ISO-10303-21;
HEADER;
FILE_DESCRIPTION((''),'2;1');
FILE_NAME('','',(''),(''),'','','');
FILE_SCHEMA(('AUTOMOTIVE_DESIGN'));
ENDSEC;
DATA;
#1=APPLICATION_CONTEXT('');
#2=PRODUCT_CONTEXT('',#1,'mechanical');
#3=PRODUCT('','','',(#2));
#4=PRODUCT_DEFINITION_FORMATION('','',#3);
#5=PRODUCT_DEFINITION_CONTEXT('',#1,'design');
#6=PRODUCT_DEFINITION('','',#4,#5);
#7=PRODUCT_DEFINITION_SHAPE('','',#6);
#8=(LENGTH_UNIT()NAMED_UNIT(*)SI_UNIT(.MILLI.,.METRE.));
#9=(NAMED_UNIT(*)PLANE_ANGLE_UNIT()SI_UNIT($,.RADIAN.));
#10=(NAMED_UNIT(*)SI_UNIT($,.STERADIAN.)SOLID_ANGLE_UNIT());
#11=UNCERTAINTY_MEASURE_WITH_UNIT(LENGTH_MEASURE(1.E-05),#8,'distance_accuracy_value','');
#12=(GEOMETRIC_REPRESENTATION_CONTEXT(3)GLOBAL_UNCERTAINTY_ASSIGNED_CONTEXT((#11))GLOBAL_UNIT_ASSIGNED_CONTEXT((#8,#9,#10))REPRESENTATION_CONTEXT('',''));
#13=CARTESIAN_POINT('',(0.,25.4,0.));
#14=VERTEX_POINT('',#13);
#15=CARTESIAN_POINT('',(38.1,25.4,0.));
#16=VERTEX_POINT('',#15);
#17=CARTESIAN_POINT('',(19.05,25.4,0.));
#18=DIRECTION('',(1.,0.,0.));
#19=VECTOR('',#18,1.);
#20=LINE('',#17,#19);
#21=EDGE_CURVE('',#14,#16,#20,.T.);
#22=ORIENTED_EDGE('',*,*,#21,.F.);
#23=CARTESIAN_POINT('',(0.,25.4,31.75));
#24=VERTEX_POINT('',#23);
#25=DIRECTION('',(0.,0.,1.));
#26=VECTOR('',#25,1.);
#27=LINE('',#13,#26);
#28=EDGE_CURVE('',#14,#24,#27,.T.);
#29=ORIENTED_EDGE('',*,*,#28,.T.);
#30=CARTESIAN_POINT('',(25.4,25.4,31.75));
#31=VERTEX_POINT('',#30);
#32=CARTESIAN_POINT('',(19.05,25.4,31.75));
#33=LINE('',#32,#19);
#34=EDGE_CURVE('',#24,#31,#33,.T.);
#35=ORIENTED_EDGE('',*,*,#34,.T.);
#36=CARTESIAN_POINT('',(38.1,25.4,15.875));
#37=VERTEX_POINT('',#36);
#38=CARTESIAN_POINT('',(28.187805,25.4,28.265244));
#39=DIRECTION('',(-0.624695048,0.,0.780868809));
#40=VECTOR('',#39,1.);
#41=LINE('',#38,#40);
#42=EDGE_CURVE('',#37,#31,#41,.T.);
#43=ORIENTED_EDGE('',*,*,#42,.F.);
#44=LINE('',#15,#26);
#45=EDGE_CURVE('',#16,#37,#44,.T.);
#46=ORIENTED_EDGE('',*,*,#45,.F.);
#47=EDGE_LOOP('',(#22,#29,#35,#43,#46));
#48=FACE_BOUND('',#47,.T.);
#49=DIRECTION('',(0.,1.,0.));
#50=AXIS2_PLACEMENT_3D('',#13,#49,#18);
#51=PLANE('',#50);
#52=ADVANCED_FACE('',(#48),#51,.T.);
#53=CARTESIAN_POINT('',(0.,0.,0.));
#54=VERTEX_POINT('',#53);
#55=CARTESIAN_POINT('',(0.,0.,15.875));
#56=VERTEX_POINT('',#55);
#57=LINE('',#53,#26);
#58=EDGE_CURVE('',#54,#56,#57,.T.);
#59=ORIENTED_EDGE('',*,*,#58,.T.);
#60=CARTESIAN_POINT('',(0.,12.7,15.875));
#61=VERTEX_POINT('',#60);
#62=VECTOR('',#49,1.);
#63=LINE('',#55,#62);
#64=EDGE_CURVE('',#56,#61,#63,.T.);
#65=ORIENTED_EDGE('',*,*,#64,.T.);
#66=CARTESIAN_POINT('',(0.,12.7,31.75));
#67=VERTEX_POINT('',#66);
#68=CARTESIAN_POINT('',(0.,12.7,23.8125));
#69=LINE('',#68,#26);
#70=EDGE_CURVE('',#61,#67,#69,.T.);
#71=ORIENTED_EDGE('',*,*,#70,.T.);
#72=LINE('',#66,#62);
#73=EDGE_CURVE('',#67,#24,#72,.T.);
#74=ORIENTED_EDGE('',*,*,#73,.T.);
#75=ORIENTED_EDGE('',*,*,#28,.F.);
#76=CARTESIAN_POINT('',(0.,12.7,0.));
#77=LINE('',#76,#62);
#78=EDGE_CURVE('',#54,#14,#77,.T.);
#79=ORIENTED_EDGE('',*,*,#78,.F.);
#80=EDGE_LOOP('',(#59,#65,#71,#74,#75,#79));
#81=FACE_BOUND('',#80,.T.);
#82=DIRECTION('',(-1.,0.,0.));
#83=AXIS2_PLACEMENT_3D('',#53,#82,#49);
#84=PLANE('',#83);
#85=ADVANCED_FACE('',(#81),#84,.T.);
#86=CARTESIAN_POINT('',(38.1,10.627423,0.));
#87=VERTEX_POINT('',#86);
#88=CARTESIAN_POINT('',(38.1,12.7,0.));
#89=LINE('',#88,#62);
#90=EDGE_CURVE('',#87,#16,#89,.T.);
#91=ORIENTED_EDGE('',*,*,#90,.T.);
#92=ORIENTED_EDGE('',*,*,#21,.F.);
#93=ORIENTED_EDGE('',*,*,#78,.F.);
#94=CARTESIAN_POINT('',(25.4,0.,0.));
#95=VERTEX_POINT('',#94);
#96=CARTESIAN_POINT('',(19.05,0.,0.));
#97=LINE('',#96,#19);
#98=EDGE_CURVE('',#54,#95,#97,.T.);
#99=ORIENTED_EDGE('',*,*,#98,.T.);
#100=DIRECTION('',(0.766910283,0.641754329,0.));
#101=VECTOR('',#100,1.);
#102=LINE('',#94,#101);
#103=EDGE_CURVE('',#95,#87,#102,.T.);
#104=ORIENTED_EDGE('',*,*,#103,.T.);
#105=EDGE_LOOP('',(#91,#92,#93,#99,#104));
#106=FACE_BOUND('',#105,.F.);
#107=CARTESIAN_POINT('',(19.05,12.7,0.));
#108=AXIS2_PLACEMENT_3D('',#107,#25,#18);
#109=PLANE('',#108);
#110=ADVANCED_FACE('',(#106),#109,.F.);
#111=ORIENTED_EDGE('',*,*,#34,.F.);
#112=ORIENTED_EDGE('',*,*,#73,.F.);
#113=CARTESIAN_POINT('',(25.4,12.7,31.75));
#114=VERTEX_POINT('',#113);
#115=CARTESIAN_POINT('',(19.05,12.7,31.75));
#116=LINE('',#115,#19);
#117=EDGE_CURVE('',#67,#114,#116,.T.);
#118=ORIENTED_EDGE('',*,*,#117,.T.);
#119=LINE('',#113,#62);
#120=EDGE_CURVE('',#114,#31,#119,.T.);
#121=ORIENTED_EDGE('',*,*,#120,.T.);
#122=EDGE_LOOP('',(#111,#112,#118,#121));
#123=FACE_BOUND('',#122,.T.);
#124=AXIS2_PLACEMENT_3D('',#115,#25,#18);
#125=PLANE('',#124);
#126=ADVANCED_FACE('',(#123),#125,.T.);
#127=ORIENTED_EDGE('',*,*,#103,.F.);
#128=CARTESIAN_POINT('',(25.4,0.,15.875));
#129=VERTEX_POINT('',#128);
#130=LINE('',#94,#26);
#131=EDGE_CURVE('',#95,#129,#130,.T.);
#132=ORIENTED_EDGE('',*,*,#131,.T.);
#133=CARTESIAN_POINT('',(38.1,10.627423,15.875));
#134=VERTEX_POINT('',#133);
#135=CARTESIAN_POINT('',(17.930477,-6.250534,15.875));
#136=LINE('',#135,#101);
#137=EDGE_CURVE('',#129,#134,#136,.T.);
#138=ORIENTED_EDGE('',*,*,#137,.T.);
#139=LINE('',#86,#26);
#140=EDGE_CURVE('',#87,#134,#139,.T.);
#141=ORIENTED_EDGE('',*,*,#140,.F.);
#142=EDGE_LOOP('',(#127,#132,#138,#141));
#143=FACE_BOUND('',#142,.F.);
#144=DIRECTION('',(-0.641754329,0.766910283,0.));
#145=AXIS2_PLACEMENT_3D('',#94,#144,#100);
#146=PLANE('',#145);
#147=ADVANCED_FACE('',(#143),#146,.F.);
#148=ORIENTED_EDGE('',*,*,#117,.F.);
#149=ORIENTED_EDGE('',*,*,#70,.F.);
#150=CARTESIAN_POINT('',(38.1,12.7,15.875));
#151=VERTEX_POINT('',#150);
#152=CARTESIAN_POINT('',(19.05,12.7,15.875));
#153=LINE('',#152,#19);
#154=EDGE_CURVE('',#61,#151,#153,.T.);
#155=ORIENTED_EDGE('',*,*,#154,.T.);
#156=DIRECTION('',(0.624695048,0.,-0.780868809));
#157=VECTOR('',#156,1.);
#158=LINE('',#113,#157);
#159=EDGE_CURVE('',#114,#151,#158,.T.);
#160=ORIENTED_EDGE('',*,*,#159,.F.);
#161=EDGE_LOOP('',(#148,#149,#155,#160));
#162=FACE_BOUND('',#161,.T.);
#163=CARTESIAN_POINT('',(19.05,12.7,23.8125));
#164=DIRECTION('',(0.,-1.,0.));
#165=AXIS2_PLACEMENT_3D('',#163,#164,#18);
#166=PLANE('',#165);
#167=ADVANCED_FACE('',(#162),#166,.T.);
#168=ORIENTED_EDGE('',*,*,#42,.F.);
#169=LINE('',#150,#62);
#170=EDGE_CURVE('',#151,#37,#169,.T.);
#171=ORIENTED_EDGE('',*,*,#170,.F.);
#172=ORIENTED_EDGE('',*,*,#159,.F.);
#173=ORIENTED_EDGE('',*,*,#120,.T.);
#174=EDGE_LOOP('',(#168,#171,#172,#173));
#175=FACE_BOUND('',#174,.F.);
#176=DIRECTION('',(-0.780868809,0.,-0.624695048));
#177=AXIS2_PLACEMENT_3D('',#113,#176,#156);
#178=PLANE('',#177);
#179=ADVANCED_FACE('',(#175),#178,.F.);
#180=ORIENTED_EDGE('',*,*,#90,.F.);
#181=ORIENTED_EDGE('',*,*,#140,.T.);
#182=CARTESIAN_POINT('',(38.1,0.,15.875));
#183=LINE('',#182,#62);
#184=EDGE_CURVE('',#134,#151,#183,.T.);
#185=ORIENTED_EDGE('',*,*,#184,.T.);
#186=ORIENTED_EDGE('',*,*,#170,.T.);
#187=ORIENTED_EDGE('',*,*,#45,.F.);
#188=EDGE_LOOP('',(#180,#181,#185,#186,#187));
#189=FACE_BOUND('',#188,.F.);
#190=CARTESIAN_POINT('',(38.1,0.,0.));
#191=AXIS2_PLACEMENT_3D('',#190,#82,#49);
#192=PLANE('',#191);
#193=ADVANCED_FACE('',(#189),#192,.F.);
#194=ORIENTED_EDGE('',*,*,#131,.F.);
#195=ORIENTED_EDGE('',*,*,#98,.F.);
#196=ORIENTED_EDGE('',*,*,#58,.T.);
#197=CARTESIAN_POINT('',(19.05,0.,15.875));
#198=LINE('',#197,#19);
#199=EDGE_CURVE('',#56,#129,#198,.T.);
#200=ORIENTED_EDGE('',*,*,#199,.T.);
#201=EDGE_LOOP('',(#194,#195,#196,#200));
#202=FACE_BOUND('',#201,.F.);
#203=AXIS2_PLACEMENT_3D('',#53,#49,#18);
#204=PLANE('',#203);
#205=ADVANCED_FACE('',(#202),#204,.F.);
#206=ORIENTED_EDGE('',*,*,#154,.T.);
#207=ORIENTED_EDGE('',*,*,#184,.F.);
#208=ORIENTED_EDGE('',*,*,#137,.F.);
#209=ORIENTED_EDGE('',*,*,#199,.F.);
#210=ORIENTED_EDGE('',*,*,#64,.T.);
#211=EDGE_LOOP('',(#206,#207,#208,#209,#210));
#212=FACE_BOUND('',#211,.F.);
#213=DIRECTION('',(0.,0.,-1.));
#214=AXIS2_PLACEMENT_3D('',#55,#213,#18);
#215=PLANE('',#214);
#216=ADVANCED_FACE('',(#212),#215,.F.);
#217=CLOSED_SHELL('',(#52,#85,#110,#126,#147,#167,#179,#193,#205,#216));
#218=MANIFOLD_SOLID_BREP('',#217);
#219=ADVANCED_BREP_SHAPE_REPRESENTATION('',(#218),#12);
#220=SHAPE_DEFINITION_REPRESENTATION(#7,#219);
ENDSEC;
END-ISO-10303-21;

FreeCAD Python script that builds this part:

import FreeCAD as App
import Part
import Sketcher

V = App.Vector
Q = App.Units.Quantity


def add_polygon(sketch, points):
    """Adds a closed chain of lines whose ends are joined by coincident constraints."""
    first, n = sketch.GeometryCount, len(points)
    for a, b in zip(points, points[1:] + points[:1]):
        sketch.addGeometry(Part.LineSegment(App.Vector(*a, 0), App.Vector(*b, 0)), False)
    for i in range(n):
        sketch.addConstraint(Sketcher.Constraint("Coincident", first + i, 2, first + (i + 1) % n, 1))

doc = App.newDocument("Part")
body = doc.addObject("PartDesign::Body", "Body")

# Sketch on XY plane
sketch1 = body.newObject("Sketcher::SketchObject", "Sketch")
sketch1.AttachmentSupport = (doc.getObject("XY_Plane"), [""])
sketch1.MapMode = "FlatFace"
add_polygon(sketch1, [(0, 25), (0, 0), (38, 0), (38, 25)])  # lines 0-3
sketch1.addConstraint([
    Sketcher.Constraint("Vertical", 0),
    Sketcher.Constraint("Horizontal", 1),
    Sketcher.Constraint("Vertical", 2),
    Sketcher.Constraint("Horizontal", 3),
    Sketcher.Constraint("Coincident", 0, 2, -1, 1),
    Sketcher.Constraint("DistanceY", 0, 2, 0, 1, Q("1 in")),
    Sketcher.Constraint("DistanceX", 1, 1, 1, 2, Q("1.5 in")),
])
pad1 = body.newObject("PartDesign::Pad", "Pad")
pad1.Profile = sketch1
pad1.Length = Q("1.25 in")

# Sketch on XZ plane
sketch2 = body.newObject("Sketcher::SketchObject", "Sketch001")
sketch2.AttachmentSupport = (doc.getObject("XZ_Plane"), [""])
sketch2.MapMode = "FlatFace"
add_polygon(sketch2, [(0, 32), (0, 16), (38, 16), (38, 32)])  # lines 0-3
sketch2.addConstraint([
    Sketcher.Constraint("Vertical", 0),
    Sketcher.Constraint("Horizontal", 1),
    Sketcher.Constraint("Vertical", 2),
    Sketcher.Constraint("Horizontal", 3),
    Sketcher.Constraint("PointOnObject", 0, 2, -2),
    Sketcher.Constraint("DistanceX", 1, 1, 1, 2, Q("1.5 in")),
    Sketcher.Constraint("DistanceY", 0, 2, 0, 1, Q("0.625 in")),
    Sketcher.Constraint("DistanceY", -1, 1, 2, 2, Q("1.25 in")),
])
pocket1 = body.newObject("PartDesign::Pocket", "Pocket")
pocket1.Profile = sketch2
pocket1.Length = Q("0.5 in")

# Sketch on XZ plane
sketch3 = body.newObject("Sketcher::SketchObject", "Sketch002")
sketch3.AttachmentSupport = (doc.getObject("XZ_Plane"), [""])
sketch3.MapMode = "FlatFace"
sketch3.AttachmentOffset = App.Placement(V(0, 0, -0.5 * 25.4), App.Rotation())
add_polygon(sketch3, [(38, 16), (38, 32), (25, 32)])  # lines 0-2
sketch3.addConstraint([
    Sketcher.Constraint("Vertical", 0),
    Sketcher.Constraint("Horizontal", 1),
    Sketcher.Constraint("DistanceX", 1, 2, 1, 1, Q("0.5 in")),
    Sketcher.Constraint("DistanceX", -1, 1, 1, 2, Q("1 in")),
    Sketcher.Constraint("DistanceY", 0, 1, 0, 2, Q("0.625 in")),
    Sketcher.Constraint("DistanceY", -1, 1, 0, 2, Q("1.25 in")),
])
pocket2 = body.newObject("PartDesign::Pocket", "Pocket001")
pocket2.Profile = sketch3
pocket2.Length = Q("1 in")

# Sketch on XY plane
sketch4 = body.newObject("Sketcher::SketchObject", "Sketch003")
sketch4.AttachmentSupport = (doc.getObject("XY_Plane"), [""])
sketch4.MapMode = "FlatFace"
add_polygon(sketch4, [(38, 11), (38, 0), (25, 0)])  # lines 0-2
sketch4.addConstraint([
    Sketcher.Constraint("Vertical", 0),
    Sketcher.Constraint("Horizontal", 1),
    Sketcher.Constraint("PointOnObject", 0, 2, -1),
    Sketcher.Constraint("DistanceX", 1, 2, 1, 1, Q("0.5 in")),
    Sketcher.Constraint("DistanceX", -1, 1, 1, 2, Q("1 in")),
    Sketcher.Constraint("DistanceY", 0, 2, 0, 1, 10.627423),
])
pocket3 = body.newObject("PartDesign::Pocket", "Pocket002")
pocket3.Profile = sketch4
pocket3.Length = Q("1 in")
pocket3.Reversed = True

doc.recompute()
